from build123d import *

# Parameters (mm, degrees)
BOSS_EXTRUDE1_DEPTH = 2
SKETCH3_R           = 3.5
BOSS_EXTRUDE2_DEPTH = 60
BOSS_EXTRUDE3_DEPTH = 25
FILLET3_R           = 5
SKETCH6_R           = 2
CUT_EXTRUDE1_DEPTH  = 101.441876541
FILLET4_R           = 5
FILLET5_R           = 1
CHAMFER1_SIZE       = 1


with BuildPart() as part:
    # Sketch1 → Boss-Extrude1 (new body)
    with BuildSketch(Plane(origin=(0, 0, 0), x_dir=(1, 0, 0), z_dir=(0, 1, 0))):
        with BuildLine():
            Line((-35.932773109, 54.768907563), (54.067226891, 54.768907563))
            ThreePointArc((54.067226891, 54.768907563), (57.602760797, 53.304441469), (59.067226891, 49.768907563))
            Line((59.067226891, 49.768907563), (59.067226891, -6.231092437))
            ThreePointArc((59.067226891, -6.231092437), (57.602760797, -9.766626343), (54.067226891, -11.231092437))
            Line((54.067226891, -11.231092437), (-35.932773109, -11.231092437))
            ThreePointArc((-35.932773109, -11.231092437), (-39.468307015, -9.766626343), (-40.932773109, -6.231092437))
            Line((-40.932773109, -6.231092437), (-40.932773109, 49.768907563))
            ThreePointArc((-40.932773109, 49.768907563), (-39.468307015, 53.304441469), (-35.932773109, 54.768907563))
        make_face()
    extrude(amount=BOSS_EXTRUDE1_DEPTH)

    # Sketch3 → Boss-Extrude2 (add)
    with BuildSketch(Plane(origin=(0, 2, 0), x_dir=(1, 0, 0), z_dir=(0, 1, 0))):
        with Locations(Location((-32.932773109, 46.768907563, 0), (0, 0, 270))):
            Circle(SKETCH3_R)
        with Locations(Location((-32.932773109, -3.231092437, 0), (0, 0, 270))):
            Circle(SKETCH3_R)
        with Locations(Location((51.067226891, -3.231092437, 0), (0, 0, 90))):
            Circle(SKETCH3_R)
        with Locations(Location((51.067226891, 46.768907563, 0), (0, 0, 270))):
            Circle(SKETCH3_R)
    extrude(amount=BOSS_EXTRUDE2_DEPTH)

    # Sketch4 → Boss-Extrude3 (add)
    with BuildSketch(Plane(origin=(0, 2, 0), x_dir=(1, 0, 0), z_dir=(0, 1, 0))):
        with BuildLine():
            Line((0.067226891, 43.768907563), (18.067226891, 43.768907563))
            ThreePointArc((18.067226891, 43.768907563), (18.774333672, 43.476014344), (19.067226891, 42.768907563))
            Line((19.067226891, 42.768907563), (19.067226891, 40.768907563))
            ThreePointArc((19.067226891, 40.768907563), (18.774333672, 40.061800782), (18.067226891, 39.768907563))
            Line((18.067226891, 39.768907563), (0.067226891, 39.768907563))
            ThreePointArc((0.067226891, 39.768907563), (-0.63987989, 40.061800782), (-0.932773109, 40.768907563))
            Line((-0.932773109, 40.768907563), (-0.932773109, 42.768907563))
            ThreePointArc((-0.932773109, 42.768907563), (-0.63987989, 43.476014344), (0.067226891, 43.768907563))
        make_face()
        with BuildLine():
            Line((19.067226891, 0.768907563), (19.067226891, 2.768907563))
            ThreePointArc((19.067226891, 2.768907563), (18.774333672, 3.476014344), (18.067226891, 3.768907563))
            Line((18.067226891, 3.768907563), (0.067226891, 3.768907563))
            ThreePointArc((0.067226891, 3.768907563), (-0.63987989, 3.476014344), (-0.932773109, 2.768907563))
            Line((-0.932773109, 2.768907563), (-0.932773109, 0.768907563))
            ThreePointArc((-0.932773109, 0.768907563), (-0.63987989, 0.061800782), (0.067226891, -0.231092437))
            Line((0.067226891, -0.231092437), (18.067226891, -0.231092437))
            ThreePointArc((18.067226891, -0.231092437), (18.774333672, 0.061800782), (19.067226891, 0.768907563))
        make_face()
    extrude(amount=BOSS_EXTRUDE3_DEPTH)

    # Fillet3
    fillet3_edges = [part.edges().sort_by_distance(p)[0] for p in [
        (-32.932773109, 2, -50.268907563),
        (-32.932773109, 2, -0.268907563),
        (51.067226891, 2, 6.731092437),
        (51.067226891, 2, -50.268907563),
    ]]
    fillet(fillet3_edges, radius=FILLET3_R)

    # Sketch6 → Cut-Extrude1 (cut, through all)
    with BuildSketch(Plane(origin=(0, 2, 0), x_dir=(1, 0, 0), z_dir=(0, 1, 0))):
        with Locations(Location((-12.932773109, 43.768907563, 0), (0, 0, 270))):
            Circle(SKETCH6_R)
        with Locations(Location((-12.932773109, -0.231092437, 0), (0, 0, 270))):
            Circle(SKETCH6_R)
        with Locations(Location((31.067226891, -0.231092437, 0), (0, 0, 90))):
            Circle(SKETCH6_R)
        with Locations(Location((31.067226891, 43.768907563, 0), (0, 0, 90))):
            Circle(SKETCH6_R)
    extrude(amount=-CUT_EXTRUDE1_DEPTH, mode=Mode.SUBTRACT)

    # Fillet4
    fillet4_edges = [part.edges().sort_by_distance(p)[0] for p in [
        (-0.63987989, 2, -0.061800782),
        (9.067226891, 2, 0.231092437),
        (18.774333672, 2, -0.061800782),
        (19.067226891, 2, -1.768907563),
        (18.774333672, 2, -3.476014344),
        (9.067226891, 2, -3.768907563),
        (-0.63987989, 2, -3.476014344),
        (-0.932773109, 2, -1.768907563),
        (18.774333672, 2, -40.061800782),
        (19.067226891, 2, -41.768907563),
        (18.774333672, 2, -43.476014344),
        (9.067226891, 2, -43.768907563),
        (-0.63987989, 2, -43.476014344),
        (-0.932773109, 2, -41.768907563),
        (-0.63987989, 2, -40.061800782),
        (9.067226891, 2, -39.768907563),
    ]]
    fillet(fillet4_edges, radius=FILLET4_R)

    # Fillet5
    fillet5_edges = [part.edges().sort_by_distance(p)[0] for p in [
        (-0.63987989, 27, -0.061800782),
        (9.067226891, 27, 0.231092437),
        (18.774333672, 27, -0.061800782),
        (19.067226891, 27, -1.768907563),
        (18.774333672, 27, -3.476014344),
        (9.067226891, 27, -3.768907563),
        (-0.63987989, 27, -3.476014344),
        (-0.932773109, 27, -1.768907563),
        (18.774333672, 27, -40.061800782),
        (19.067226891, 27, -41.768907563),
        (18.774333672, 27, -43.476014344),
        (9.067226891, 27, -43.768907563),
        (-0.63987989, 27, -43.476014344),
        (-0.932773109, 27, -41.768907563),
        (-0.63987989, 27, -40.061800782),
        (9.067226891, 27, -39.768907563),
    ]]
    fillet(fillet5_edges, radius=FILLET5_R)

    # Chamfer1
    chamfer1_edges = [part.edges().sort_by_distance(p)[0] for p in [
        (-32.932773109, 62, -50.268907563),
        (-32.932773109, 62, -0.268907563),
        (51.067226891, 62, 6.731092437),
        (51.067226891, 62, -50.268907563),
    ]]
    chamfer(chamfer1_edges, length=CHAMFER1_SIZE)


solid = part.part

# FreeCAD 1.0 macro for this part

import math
import FreeCAD as App
import Part
import Sketcher
from FreeCAD import Vector
Q = App.Units.Quantity


def edges_at(feature, points):
    """Names of the edges that pass closest to the given points."""
    edges = feature.Shape.Edges
    near = lambda p: min(range(len(edges)), key=lambda i: edges[i].distToShape(Part.Vertex(*p))[0])
    return sorted({f"Edge{near(p) + 1}" for p in points})

doc = App.newDocument("Part")
body = doc.addObject("PartDesign::Body", "Body")

sketch1 = body.newObject("Sketcher::SketchObject", "Sketch")
sketch1.AttachmentSupport = (doc.getObject("XZ_Plane"), [""])
sketch1.MapMode = "FlatFace"
sketch1.addGeometry([
    Part.LineSegment(Vector(54.067227, -54.768908, 0), Vector(-35.932773, -54.768908, 0)),
    Part.ArcOfCircle(Part.Circle(Vector(-35.932773, -49.768908, 0), Vector(0, 0, 1), 5), math.radians(180), math.radians(270)),
    Part.LineSegment(Vector(-40.932773, -49.768908, 0), Vector(-40.932773, 6.231092, 0)),
    Part.ArcOfCircle(Part.Circle(Vector(-35.932773, 6.231092, 0), Vector(0, 0, 1), 5), math.radians(90), math.radians(180)),
    Part.LineSegment(Vector(-35.932773, 11.231092, 0), Vector(54.067227, 11.231092, 0)),
    Part.ArcOfCircle(Part.Circle(Vector(54.067227, 6.231092, 0), Vector(0, 0, 1), 5), math.radians(0), math.radians(90)),
    Part.LineSegment(Vector(59.067227, 6.231092, 0), Vector(59.067227, -49.768908, 0)),
    Part.ArcOfCircle(Part.Circle(Vector(54.067227, -49.768908, 0), Vector(0, 0, 1), 5), math.radians(-90), math.radians(0)),
], False)
sketch1.addConstraint([
    Sketcher.Constraint("Tangent", 0, 2, 1, 2),
    Sketcher.Constraint("Tangent", 1, 1, 2, 1),
    Sketcher.Constraint("Tangent", 2, 2, 3, 2),
    Sketcher.Constraint("Tangent", 3, 1, 4, 1),
    Sketcher.Constraint("Tangent", 4, 2, 5, 2),
    Sketcher.Constraint("Tangent", 5, 1, 6, 1),
    Sketcher.Constraint("Tangent", 6, 2, 7, 2),
    Sketcher.Constraint("Tangent", 7, 1, 0, 1),
    Sketcher.Constraint("Horizontal", 0),
    Sketcher.Constraint("Vertical", 2),
    Sketcher.Constraint("Horizontal", 4),
    Sketcher.Constraint("Vertical", 6),
    Sketcher.Constraint("Equal", 1, 3),
    Sketcher.Constraint("Equal", 3, 5),
    Sketcher.Constraint("Equal", 5, 7),
    Sketcher.Constraint("Radius", 1, Q("5 mm")),
    Sketcher.Constraint("DistanceX", 0, 2, 0, 1, Q("90 mm")),
    Sketcher.Constraint("DistanceY", 2, 1, 2, 2, Q("56 mm")),
    Sketcher.Constraint("DistanceX", 1, 3, -1, 1, Q("35.932773 mm")),
    Sketcher.Constraint("DistanceY", 1, 3, -1, 1, Q("49.768908 mm")),
])
pad1 = body.newObject("PartDesign::Pad", "Pad")
pad1.Profile = sketch1
pad1.Length = 2
pad1.Reversed = True

sketch2 = body.newObject("Sketcher::SketchObject", "Sketch001")
sketch2.AttachmentSupport = (doc.getObject("XZ_Plane"), [""])
sketch2.MapMode = "FlatFace"
sketch2.AttachmentOffset = App.Placement(Vector(0, 0, -2), App.Rotation())
sketch2.addGeometry([
    Part.Circle(Vector(-32.932773, -46.768908, 0), Vector(0, 0, 1), 3.5),
    Part.Circle(Vector(-32.932773, 3.231092, 0), Vector(0, 0, 1), 3.5),
    Part.Circle(Vector(51.067227, 3.231092, 0), Vector(0, 0, 1), 3.5),
    Part.Circle(Vector(51.067227, -46.768908, 0), Vector(0, 0, 1), 3.5),
], False)
sketch2.addConstraint([
    Sketcher.Constraint("Equal", 0, 1),
    Sketcher.Constraint("Equal", 1, 2),
    Sketcher.Constraint("Equal", 2, 3),
    Sketcher.Constraint("Horizontal", 1, 3, 2, 3),
    Sketcher.Constraint("Horizontal", 0, 3, 3, 3),
    Sketcher.Constraint("Vertical", 0, 3, 1, 3),
    Sketcher.Constraint("Vertical", 2, 3, 3, 3),
    Sketcher.Constraint("Diameter", 0, Q("7 mm")),
    Sketcher.Constraint("DistanceY", 0, 3, 1, 3, Q("50 mm")),
    Sketcher.Constraint("DistanceX", 1, 3, 2, 3, Q("84 mm")),
    Sketcher.Constraint("DistanceX", 0, 3, -1, 1, Q("32.932773 mm")),
    Sketcher.Constraint("DistanceY", 0, 3, -1, 1, Q("46.768908 mm")),
])
pad2 = body.newObject("PartDesign::Pad", "Pad001")
pad2.Profile = sketch2
pad2.Length = 60
pad2.Reversed = True

sketch3 = body.newObject("Sketcher::SketchObject", "Sketch002")
sketch3.AttachmentSupport = (doc.getObject("XZ_Plane"), [""])
sketch3.MapMode = "FlatFace"
sketch3.AttachmentOffset = App.Placement(Vector(0, 0, -2), App.Rotation())
sketch3.addGeometry([
    Part.LineSegment(Vector(18.067227, -43.768908, 0), Vector(0.067227, -43.768908, 0)),
    Part.ArcOfCircle(Part.Circle(Vector(0.067227, -42.768908, 0), Vector(0, 0, 1), 1), math.radians(-180), math.radians(-90)),
    Part.LineSegment(Vector(-0.932773, -42.768908, 0), Vector(-0.932773, -40.768908, 0)),
    Part.ArcOfCircle(Part.Circle(Vector(0.067227, -40.768908, 0), Vector(0, 0, 1), 1), math.radians(90), math.radians(180)),
    Part.LineSegment(Vector(0.067227, -39.768908, 0), Vector(18.067227, -39.768908, 0)),
    Part.ArcOfCircle(Part.Circle(Vector(18.067227, -40.768908, 0), Vector(0, 0, 1), 1), math.radians(0), math.radians(90)),
    Part.LineSegment(Vector(19.067227, -40.768908, 0), Vector(19.067227, -42.768908, 0)),
    Part.ArcOfCircle(Part.Circle(Vector(18.067227, -42.768908, 0), Vector(0, 0, 1), 1), math.radians(-90), math.radians(0)),
    Part.LineSegment(Vector(19.067227, -0.768908, 0), Vector(19.067227, -2.768908, 0)),
    Part.ArcOfCircle(Part.Circle(Vector(18.067227, -2.768908, 0), Vector(0, 0, 1), 1), math.radians(-90), math.radians(0)),
    Part.LineSegment(Vector(18.067227, -3.768908, 0), Vector(0.067227, -3.768908, 0)),
    Part.ArcOfCircle(Part.Circle(Vector(0.067227, -2.768908, 0), Vector(0, 0, 1), 1), math.radians(-180), math.radians(-90)),
    Part.LineSegment(Vector(-0.932773, -2.768908, 0), Vector(-0.932773, -0.768908, 0)),
    Part.ArcOfCircle(Part.Circle(Vector(0.067227, -0.768908, 0), Vector(0, 0, 1), 1), math.radians(90), math.radians(180)),
    Part.LineSegment(Vector(0.067227, 0.231092, 0), Vector(18.067227, 0.231092, 0)),
    Part.ArcOfCircle(Part.Circle(Vector(18.067227, -0.768908, 0), Vector(0, 0, 1), 1), math.radians(0), math.radians(90)),
], False)
sketch3.addConstraint([
    Sketcher.Constraint("Tangent", 0, 2, 1, 2),
    Sketcher.Constraint("Tangent", 1, 1, 2, 1),
    Sketcher.Constraint("Tangent", 2, 2, 3, 2),
    Sketcher.Constraint("Tangent", 3, 1, 4, 1),
    Sketcher.Constraint("Tangent", 4, 2, 5, 2),
    Sketcher.Constraint("Tangent", 5, 1, 6, 1),
    Sketcher.Constraint("Tangent", 6, 2, 7, 2),
    Sketcher.Constraint("Tangent", 7, 1, 0, 1),
    Sketcher.Constraint("Tangent", 8, 2, 9, 2),
    Sketcher.Constraint("Tangent", 9, 1, 10, 1),
    Sketcher.Constraint("Tangent", 10, 2, 11, 2),
    Sketcher.Constraint("Tangent", 11, 1, 12, 1),
    Sketcher.Constraint("Tangent", 12, 2, 13, 2),
    Sketcher.Constraint("Tangent", 13, 1, 14, 1),
    Sketcher.Constraint("Tangent", 14, 2, 15, 2),
    Sketcher.Constraint("Tangent", 15, 1, 8, 1),
    Sketcher.Constraint("Horizontal", 0),
    Sketcher.Constraint("Vertical", 2),
    Sketcher.Constraint("Horizontal", 4),
    Sketcher.Constraint("Vertical", 6),
    Sketcher.Constraint("Vertical", 8),
    Sketcher.Constraint("Horizontal", 10),
    Sketcher.Constraint("Vertical", 12),
    Sketcher.Constraint("Horizontal", 14),
    Sketcher.Constraint("Equal", 1, 3),
    Sketcher.Constraint("Equal", 3, 5),
    Sketcher.Constraint("Equal", 5, 7),
    Sketcher.Constraint("Equal", 7, 9),
    Sketcher.Constraint("Equal", 9, 11),
    Sketcher.Constraint("Equal", 11, 13),
    Sketcher.Constraint("Equal", 13, 15),
    Sketcher.Constraint("Vertical", 7, 3, 9, 3),
    Sketcher.Constraint("Vertical", 3, 3, 11, 3),
    Sketcher.Constraint("Equal", 6, 8),
    Sketcher.Constraint("Radius", 1, Q("1 mm")),
    Sketcher.Constraint("DistanceX", 0, 2, 0, 1, Q("18 mm")),
    Sketcher.Constraint("DistanceY", 2, 1, 2, 2, Q("2 mm")),
    Sketcher.Constraint("DistanceY", 5, 3, 9, 3, Q("38 mm")),
    Sketcher.Constraint("DistanceX", -1, 1, 1, 3, Q("0.067227 mm")),
    Sketcher.Constraint("DistanceY", 1, 3, -1, 1, Q("42.768908 mm")),
])
pad3 = body.newObject("PartDesign::Pad", "Pad002")
pad3.Profile = sketch3
pad3.Length = 25
pad3.Reversed = True
doc.recompute()

fillet = body.newObject("PartDesign::Fillet", "Fillet")
fillet.Base = (pad3, edges_at(pad3, [
    (-32.933, 2, -50.269),
    (-32.933, 2, -0.269),
    (51.067, 2, 6.731),
    (51.067, 2, -50.269),
]))
fillet.Radius = 5

sketch4 = body.newObject("Sketcher::SketchObject", "Sketch003")
sketch4.AttachmentSupport = (doc.getObject("XZ_Plane"), [""])
sketch4.MapMode = "FlatFace"
sketch4.AttachmentOffset = App.Placement(Vector(0, 0, -2), App.Rotation())
sketch4.addGeometry([
    Part.Circle(Vector(-12.932773, -43.768908, 0), Vector(0, 0, 1), 2),
    Part.Circle(Vector(-12.932773, 0.231092, 0), Vector(0, 0, 1), 2),
    Part.Circle(Vector(31.067227, 0.231092, 0), Vector(0, 0, 1), 2),
    Part.Circle(Vector(31.067227, -43.768908, 0), Vector(0, 0, 1), 2),
], False)
sketch4.addConstraint([
    Sketcher.Constraint("Equal", 0, 1),
    Sketcher.Constraint("Equal", 1, 2),
    Sketcher.Constraint("Equal", 2, 3),
    Sketcher.Constraint("Horizontal", 1, 3, 2, 3),
    Sketcher.Constraint("Horizontal", 0, 3, 3, 3),
    Sketcher.Constraint("Vertical", 0, 3, 1, 3),
    Sketcher.Constraint("Vertical", 2, 3, 3, 3),
    Sketcher.Constraint("Diameter", 0, Q("4 mm")),
    Sketcher.Constraint("DistanceY", 0, 3, 1, 3, Q("44 mm")),
    Sketcher.Constraint("DistanceX", 1, 3, 2, 3, Q("44 mm")),
    Sketcher.Constraint("DistanceX", 0, 3, -1, 1, Q("12.932773 mm")),
    Sketcher.Constraint("DistanceY", 0, 3, -1, 1, Q("43.768908 mm")),
])
pocket1 = body.newObject("PartDesign::Pocket", "Pocket")
pocket1.Profile = sketch4
pocket1.Type = "ThroughAll"
pocket1.Reversed = True
doc.recompute()

fillet2 = body.newObject("PartDesign::Fillet", "Fillet001")
fillet2.Base = (pocket1, edges_at(pocket1, [
    (-0.64, 2, -0.062),
    (9.067, 2, 0.231),
    (18.774, 2, -0.062),
    (19.067, 2, -1.769),
    (18.774, 2, -3.476),
    (9.067, 2, -3.769),
    (-0.64, 2, -3.476),
    (-0.933, 2, -1.769),
    (18.774, 2, -40.062),
    (19.067, 2, -41.769),
    (18.774, 2, -43.476),
    (9.067, 2, -43.769),
    (-0.64, 2, -43.476),
    (-0.933, 2, -41.769),
    (-0.64, 2, -40.062),
    (9.067, 2, -39.769),
]))
fillet2.Radius = 5
doc.recompute()

fillet3 = body.newObject("PartDesign::Fillet", "Fillet002")
fillet3.Base = (fillet2, edges_at(fillet2, [
    (-0.64, 27, -0.062),
    (9.067, 27, 0.231),
    (18.774, 27, -0.062),
    (19.067, 27, -1.769),
    (18.774, 27, -3.476),
    (9.067, 27, -3.769),
    (-0.64, 27, -3.476),
    (-0.933, 27, -1.769),
    (18.774, 27, -40.062),
    (19.067, 27, -41.769),
    (18.774, 27, -43.476),
    (9.067, 27, -43.769),
    (-0.64, 27, -43.476),
    (-0.933, 27, -41.769),
    (-0.64, 27, -40.062),
    (9.067, 27, -39.769),
]))
fillet3.Radius = 1
doc.recompute()

chamfer = body.newObject("PartDesign::Chamfer", "Chamfer")
chamfer.Base = (fillet3, edges_at(fillet3, [
    (-32.933, 62, -50.269),
    (-32.933, 62, -0.269),
    (51.067, 62, 6.731),
    (51.067, 62, -50.269),
]))
chamfer.Size = 1

doc.recompute()
